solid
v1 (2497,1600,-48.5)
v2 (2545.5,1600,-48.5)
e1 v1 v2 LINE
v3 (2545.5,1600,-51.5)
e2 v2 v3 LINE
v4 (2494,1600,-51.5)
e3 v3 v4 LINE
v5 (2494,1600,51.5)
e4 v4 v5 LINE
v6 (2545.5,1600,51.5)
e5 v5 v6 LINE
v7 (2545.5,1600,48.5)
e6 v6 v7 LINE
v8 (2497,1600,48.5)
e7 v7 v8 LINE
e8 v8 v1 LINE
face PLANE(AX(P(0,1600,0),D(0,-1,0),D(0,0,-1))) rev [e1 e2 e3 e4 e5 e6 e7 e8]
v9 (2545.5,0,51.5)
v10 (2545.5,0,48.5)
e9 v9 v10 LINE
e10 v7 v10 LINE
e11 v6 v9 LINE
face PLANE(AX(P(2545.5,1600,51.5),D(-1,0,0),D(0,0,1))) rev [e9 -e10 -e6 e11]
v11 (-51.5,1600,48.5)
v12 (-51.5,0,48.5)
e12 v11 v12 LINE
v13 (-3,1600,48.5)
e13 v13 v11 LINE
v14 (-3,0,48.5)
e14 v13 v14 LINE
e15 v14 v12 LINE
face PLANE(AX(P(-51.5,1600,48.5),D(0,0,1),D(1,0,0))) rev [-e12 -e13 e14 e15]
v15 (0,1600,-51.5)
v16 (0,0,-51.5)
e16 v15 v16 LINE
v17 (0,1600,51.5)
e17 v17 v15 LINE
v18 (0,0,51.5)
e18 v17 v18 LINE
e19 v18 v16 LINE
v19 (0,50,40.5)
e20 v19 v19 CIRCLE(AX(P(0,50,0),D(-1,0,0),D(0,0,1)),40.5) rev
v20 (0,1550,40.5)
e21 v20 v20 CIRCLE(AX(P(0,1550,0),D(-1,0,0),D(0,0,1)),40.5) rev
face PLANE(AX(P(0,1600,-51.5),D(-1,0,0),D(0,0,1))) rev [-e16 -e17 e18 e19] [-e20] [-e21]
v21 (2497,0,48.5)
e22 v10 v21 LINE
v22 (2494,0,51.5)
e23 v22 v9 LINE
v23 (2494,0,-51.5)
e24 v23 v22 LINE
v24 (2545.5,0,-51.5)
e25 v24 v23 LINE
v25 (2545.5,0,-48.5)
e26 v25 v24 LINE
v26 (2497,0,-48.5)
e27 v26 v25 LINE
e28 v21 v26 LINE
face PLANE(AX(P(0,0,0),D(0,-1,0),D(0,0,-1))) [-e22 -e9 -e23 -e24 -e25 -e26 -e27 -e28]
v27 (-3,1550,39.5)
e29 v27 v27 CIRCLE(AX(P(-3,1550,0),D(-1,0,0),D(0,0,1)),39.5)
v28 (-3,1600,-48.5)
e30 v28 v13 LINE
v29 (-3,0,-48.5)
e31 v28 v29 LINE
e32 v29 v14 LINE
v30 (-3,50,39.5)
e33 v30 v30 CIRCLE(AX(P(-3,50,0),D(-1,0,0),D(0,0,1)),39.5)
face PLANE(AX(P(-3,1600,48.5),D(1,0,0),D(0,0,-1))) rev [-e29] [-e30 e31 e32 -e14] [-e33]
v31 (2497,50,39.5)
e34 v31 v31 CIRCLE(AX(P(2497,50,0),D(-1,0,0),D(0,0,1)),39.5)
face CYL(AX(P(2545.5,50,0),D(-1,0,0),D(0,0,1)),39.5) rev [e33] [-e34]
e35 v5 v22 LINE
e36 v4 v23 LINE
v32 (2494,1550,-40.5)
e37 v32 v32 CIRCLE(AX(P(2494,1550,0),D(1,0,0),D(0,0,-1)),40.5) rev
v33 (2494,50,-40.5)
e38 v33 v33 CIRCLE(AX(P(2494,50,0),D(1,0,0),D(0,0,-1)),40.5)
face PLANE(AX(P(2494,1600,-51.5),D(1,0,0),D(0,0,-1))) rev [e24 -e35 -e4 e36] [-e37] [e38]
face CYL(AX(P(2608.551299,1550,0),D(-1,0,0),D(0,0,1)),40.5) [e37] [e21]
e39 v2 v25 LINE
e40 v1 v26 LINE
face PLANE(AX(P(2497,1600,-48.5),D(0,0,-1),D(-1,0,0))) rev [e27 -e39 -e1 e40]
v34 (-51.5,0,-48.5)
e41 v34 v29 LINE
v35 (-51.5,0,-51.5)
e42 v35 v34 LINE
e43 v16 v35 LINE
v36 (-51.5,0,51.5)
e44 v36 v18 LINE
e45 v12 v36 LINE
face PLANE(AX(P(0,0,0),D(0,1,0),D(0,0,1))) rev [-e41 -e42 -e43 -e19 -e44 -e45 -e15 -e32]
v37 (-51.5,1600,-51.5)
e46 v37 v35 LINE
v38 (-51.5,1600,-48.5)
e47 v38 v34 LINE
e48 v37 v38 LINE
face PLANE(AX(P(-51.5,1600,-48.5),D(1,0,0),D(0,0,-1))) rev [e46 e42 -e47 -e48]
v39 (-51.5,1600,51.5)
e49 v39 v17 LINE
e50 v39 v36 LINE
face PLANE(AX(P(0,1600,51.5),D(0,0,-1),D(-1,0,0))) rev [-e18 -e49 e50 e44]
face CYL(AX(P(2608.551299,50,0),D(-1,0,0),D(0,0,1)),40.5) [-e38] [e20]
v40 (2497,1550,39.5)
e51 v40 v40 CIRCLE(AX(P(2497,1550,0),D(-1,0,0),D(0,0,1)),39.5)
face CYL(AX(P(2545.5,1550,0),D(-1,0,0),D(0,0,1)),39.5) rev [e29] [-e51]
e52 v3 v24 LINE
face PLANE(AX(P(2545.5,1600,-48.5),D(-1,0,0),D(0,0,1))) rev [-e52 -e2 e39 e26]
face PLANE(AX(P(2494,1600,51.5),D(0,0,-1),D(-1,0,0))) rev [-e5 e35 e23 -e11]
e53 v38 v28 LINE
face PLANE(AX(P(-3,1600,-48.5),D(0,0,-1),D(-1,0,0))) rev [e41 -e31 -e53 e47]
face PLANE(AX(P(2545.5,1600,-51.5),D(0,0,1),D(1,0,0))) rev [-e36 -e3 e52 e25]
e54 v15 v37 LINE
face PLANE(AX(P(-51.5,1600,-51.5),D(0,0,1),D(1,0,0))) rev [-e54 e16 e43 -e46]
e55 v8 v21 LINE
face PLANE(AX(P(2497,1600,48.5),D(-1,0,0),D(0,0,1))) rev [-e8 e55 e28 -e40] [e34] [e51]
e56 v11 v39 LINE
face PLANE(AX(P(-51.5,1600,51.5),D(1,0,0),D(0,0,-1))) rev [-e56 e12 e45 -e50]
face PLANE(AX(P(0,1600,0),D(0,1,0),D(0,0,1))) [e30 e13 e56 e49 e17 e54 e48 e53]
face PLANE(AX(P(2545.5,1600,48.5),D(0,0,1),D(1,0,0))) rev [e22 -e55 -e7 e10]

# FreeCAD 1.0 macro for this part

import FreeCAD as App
import Part
import Sketcher
from FreeCAD import Vector
Q = App.Units.Quantity

doc = App.newDocument("Part")
body = doc.addObject("PartDesign::Body", "Body")

sketch1 = doc.addObject("Sketcher::SketchObject", "Sketch")
body.addObject(sketch1)
sketch1.AttachmentSupport = (doc.XZ_Plane, [""])
sketch1.MapMode = "FlatFace"
sketch1.addGeometry(Part.LineSegment(Vector(0, -51.5, 0), Vector(-51.5, -51.5, 0)), False)
sketch1.addGeometry(Part.LineSegment(Vector(-51.5, -51.5, 0), Vector(-51.5, -48.5, 0)), False)
sketch1.addGeometry(Part.LineSegment(Vector(-51.5, -48.5, 0), Vector(-3, -48.5, 0)), False)
sketch1.addGeometry(Part.LineSegment(Vector(-3, -48.5, 0), Vector(-3, 48.5, 0)), False)
sketch1.addGeometry(Part.LineSegment(Vector(-3, 48.5, 0), Vector(-51.5, 48.5, 0)), False)
sketch1.addGeometry(Part.LineSegment(Vector(-51.5, 48.5, 0), Vector(-51.5, 51.5, 0)), False)
sketch1.addGeometry(Part.LineSegment(Vector(-51.5, 51.5, 0), Vector(0, 51.5, 0)), False)
sketch1.addGeometry(Part.LineSegment(Vector(0, 51.5, 0), Vector(0, -51.5, 0)), False)
sketch1.addConstraint(Sketcher.Constraint("Coincident", 0, 2, 1, 1))
sketch1.addConstraint(Sketcher.Constraint("Coincident", 1, 2, 2, 1))
sketch1.addConstraint(Sketcher.Constraint("Coincident", 2, 2, 3, 1))
sketch1.addConstraint(Sketcher.Constraint("Coincident", 3, 2, 4, 1))
sketch1.addConstraint(Sketcher.Constraint("Coincident", 4, 2, 5, 1))
sketch1.addConstraint(Sketcher.Constraint("Coincident", 5, 2, 6, 1))
sketch1.addConstraint(Sketcher.Constraint("Coincident", 6, 2, 7, 1))
sketch1.addConstraint(Sketcher.Constraint("Coincident", 7, 2, 0, 1))
sketch1.addConstraint(Sketcher.Constraint("Horizontal", 0))
sketch1.addConstraint(Sketcher.Constraint("Vertical", 1))
sketch1.addConstraint(Sketcher.Constraint("Horizontal", 2))
sketch1.addConstraint(Sketcher.Constraint("Vertical", 3))
sketch1.addConstraint(Sketcher.Constraint("Horizontal", 4))
sketch1.addConstraint(Sketcher.Constraint("Vertical", 5))
sketch1.addConstraint(Sketcher.Constraint("Horizontal", 6))
sketch1.addConstraint(Sketcher.Constraint("Vertical", 7))
sketch1.addConstraint(Sketcher.Constraint("Symmetric", 6, 2, 7, 2, -1, 1))
sketch1.addConstraint(Sketcher.Constraint("Symmetric", 1, 2, 4, 2, -1))
sketch1.addConstraint(Sketcher.Constraint("DistanceY", 1, 1, 1, 2, Q("3 mm")))
sketch1.addConstraint(Sketcher.Constraint("DistanceY", 3, 1, 3, 2, Q("97 mm")))
sketch1.addConstraint(Sketcher.Constraint("DistanceX", 0, 2, 0, 1, Q("51.5 mm")))
sketch1.addConstraint(Sketcher.Constraint("DistanceX", 2, 1, 2, 2, Q("48.5 mm")))
pad1 = doc.addObject("PartDesign::Pad", "Pad")
body.addObject(pad1)
pad1.Profile = sketch1
pad1.Length = 1600
pad1.Reversed = True
body2 = doc.addObject("PartDesign::Body", "Body001")

sketch2 = doc.addObject("Sketcher::SketchObject", "Sketch001")
body2.addObject(sketch2)
sketch2.AttachmentSupport = (doc.getObject("XZ_Plane001"), [""])
sketch2.MapMode = "FlatFace"
sketch2.addGeometry(Part.LineSegment(Vector(2497, -48.5, 0), Vector(2545.5, -48.5, 0)), False)
sketch2.addGeometry(Part.LineSegment(Vector(2545.5, -48.5, 0), Vector(2545.5, -51.5, 0)), False)
sketch2.addGeometry(Part.LineSegment(Vector(2545.5, -51.5, 0), Vector(2494, -51.5, 0)), False)
sketch2.addGeometry(Part.LineSegment(Vector(2494, -51.5, 0), Vector(2494, 51.5, 0)), False)
sketch2.addGeometry(Part.LineSegment(Vector(2494, 51.5, 0), Vector(2545.5, 51.5, 0)), False)
sketch2.addGeometry(Part.LineSegment(Vector(2545.5, 51.5, 0), Vector(2545.5, 48.5, 0)), False)
sketch2.addGeometry(Part.LineSegment(Vector(2545.5, 48.5, 0), Vector(2497, 48.5, 0)), False)
sketch2.addGeometry(Part.LineSegment(Vector(2497, 48.5, 0), Vector(2497, -48.5, 0)), False)
sketch2.addConstraint(Sketcher.Constraint("Coincident", 0, 2, 1, 1))
sketch2.addConstraint(Sketcher.Constraint("Coincident", 1, 2, 2, 1))
sketch2.addConstraint(Sketcher.Constraint("Coincident", 2, 2, 3, 1))
sketch2.addConstraint(Sketcher.Constraint("Coincident", 3, 2, 4, 1))
sketch2.addConstraint(Sketcher.Constraint("Coincident", 4, 2, 5, 1))
sketch2.addConstraint(Sketcher.Constraint("Coincident", 5, 2, 6, 1))
sketch2.addConstraint(Sketcher.Constraint("Coincident", 6, 2, 7, 1))
sketch2.addConstraint(Sketcher.Constraint("Coincident", 7, 2, 0, 1))
sketch2.addConstraint(Sketcher.Constraint("Horizontal", 0))
sketch2.addConstraint(Sketcher.Constraint("Vertical", 1))
sketch2.addConstraint(Sketcher.Constraint("Horizontal", 2))
sketch2.addConstraint(Sketcher.Constraint("Vertical", 3))
sketch2.addConstraint(Sketcher.Constraint("Horizontal", 4))
sketch2.addConstraint(Sketcher.Constraint("Vertical", 5))
sketch2.addConstraint(Sketcher.Constraint("Horizontal", 6))
sketch2.addConstraint(Sketcher.Constraint("Vertical", 7))
sketch2.addConstraint(Sketcher.Constraint("Symmetric", 1, 2, 4, 2, -1))
sketch2.addConstraint(Sketcher.Constraint("Equal", 1, 5))
sketch2.addConstraint(Sketcher.Constraint("DistanceY", 1, 2, 1, 1, Q("3 mm")))
sketch2.addConstraint(Sketcher.Constraint("DistanceY", 3, 1, 3, 2, Q("103 mm")))
sketch2.addConstraint(Sketcher.Constraint("DistanceX", 0, 1, 0, 2, Q("48.5 mm")))
sketch2.addConstraint(Sketcher.Constraint("DistanceX", 2, 2, 2, 1, Q("51.5 mm")))
sketch2.addConstraint(Sketcher.Constraint("DistanceX", -1, 1, 2, 2, Q("2494 mm")))
pad2 = doc.addObject("PartDesign::Pad", "Pad001")
body2.addObject(pad2)
pad2.Profile = sketch2
pad2.Length = 1600
pad2.Reversed = True
body3 = doc.addObject("PartDesign::Body", "Body002")
body3.AllowCompound = True

sketch3 = doc.addObject("Sketcher::SketchObject", "Sketch002")
body3.addObject(sketch3)
sketch3.AttachmentSupport = (doc.getObject("YZ_Plane002"), [""])
sketch3.MapMode = "FlatFace"
sketch3.AttachmentOffset = App.Placement(Vector(0, 0, -3), App.Rotation())
sketch3.addGeometry(Part.Circle(Vector(50, 0, 0), Vector(0, 0, 1), 39.5), False)
sketch3.addGeometry(Part.Circle(Vector(1550, 0, 0), Vector(0, 0, 1), 39.5), False)
sketch3.addConstraint(Sketcher.Constraint("Equal", 0, 1))
sketch3.addConstraint(Sketcher.Constraint("PointOnObject", 0, 3, -1))
sketch3.addConstraint(Sketcher.Constraint("PointOnObject", 1, 3, -1))
sketch3.addConstraint(Sketcher.Constraint("Diameter", 0, Q("79 mm")))
sketch3.addConstraint(Sketcher.Constraint("DistanceX", -1, 1, 0, 3, Q("50 mm")))
sketch3.addConstraint(Sketcher.Constraint("DistanceX", -1, 1, 1, 3, Q("1550 mm")))
pad3 = doc.addObject("PartDesign::Pad", "Pad002")
body3.addObject(pad3)
pad3.Profile = sketch3
pad3.Length = 2549.5
doc.recompute()

body4 = doc.addObject("PartDesign::Body", "Body003")
body4.BaseFeature = body3
boolean = doc.addObject("PartDesign::Boolean", "Boolean")
body.addObject(boolean)
boolean.Type = "Cut"
boolean.addObjects([body4])
doc.recompute()

boolean2 = doc.addObject("PartDesign::Boolean", "Boolean001")
body2.addObject(boolean2)
boolean2.Type = "Cut"
boolean2.addObjects([body3])
body.AllowCompound = True
doc.recompute()

boolean3 = doc.addObject("PartDesign::Boolean", "Boolean002")
body.addObject(boolean3)
boolean3.Type = "Fuse"
boolean3.addObjects([body2])

sketch4 = doc.addObject("Sketcher::SketchObject", "Sketch003")
body.addObject(sketch4)
sketch4.AttachmentSupport = (doc.YZ_Plane, [""])
sketch4.MapMode = "FlatFace"
sketch4.addGeometry(Part.Circle(Vector(50, 0, 0), Vector(0, 0, 1), 40.5), False)
sketch4.addGeometry(Part.Circle(Vector(50, 0, 0), Vector(0, 0, 1), 39.5), False)
sketch4.addGeometry(Part.Circle(Vector(1550, 0, 0), Vector(0, 0, 1), 40.5), False)
sketch4.addGeometry(Part.Circle(Vector(1550, 0, 0), Vector(0, 0, 1), 39.5), False)
sketch4.addConstraint(Sketcher.Constraint("Coincident", 1, 3, 0, 3))
sketch4.addConstraint(Sketcher.Constraint("Coincident", 3, 3, 2, 3))
sketch4.addConstraint(Sketcher.Constraint("Equal", 0, 2))
sketch4.addConstraint(Sketcher.Constraint("Equal", 1, 3))
sketch4.addConstraint(Sketcher.Constraint("PointOnObject", 0, 3, -1))
sketch4.addConstraint(Sketcher.Constraint("PointOnObject", 2, 3, -1))
sketch4.addConstraint(Sketcher.Constraint("Diameter", 0, Q("81 mm")))
sketch4.addConstraint(Sketcher.Constraint("Diameter", 1, Q("79 mm")))
sketch4.addConstraint(Sketcher.Constraint("DistanceX", -1, 1, 0, 3, Q("50 mm")))
sketch4.addConstraint(Sketcher.Constraint("DistanceX", -1, 1, 2, 3, Q("1550 mm")))
pad4 = doc.addObject("PartDesign::Pad", "Pad003")
body.addObject(pad4)
pad4.Profile = sketch4
pad4.Length = 2494

doc.recompute()
